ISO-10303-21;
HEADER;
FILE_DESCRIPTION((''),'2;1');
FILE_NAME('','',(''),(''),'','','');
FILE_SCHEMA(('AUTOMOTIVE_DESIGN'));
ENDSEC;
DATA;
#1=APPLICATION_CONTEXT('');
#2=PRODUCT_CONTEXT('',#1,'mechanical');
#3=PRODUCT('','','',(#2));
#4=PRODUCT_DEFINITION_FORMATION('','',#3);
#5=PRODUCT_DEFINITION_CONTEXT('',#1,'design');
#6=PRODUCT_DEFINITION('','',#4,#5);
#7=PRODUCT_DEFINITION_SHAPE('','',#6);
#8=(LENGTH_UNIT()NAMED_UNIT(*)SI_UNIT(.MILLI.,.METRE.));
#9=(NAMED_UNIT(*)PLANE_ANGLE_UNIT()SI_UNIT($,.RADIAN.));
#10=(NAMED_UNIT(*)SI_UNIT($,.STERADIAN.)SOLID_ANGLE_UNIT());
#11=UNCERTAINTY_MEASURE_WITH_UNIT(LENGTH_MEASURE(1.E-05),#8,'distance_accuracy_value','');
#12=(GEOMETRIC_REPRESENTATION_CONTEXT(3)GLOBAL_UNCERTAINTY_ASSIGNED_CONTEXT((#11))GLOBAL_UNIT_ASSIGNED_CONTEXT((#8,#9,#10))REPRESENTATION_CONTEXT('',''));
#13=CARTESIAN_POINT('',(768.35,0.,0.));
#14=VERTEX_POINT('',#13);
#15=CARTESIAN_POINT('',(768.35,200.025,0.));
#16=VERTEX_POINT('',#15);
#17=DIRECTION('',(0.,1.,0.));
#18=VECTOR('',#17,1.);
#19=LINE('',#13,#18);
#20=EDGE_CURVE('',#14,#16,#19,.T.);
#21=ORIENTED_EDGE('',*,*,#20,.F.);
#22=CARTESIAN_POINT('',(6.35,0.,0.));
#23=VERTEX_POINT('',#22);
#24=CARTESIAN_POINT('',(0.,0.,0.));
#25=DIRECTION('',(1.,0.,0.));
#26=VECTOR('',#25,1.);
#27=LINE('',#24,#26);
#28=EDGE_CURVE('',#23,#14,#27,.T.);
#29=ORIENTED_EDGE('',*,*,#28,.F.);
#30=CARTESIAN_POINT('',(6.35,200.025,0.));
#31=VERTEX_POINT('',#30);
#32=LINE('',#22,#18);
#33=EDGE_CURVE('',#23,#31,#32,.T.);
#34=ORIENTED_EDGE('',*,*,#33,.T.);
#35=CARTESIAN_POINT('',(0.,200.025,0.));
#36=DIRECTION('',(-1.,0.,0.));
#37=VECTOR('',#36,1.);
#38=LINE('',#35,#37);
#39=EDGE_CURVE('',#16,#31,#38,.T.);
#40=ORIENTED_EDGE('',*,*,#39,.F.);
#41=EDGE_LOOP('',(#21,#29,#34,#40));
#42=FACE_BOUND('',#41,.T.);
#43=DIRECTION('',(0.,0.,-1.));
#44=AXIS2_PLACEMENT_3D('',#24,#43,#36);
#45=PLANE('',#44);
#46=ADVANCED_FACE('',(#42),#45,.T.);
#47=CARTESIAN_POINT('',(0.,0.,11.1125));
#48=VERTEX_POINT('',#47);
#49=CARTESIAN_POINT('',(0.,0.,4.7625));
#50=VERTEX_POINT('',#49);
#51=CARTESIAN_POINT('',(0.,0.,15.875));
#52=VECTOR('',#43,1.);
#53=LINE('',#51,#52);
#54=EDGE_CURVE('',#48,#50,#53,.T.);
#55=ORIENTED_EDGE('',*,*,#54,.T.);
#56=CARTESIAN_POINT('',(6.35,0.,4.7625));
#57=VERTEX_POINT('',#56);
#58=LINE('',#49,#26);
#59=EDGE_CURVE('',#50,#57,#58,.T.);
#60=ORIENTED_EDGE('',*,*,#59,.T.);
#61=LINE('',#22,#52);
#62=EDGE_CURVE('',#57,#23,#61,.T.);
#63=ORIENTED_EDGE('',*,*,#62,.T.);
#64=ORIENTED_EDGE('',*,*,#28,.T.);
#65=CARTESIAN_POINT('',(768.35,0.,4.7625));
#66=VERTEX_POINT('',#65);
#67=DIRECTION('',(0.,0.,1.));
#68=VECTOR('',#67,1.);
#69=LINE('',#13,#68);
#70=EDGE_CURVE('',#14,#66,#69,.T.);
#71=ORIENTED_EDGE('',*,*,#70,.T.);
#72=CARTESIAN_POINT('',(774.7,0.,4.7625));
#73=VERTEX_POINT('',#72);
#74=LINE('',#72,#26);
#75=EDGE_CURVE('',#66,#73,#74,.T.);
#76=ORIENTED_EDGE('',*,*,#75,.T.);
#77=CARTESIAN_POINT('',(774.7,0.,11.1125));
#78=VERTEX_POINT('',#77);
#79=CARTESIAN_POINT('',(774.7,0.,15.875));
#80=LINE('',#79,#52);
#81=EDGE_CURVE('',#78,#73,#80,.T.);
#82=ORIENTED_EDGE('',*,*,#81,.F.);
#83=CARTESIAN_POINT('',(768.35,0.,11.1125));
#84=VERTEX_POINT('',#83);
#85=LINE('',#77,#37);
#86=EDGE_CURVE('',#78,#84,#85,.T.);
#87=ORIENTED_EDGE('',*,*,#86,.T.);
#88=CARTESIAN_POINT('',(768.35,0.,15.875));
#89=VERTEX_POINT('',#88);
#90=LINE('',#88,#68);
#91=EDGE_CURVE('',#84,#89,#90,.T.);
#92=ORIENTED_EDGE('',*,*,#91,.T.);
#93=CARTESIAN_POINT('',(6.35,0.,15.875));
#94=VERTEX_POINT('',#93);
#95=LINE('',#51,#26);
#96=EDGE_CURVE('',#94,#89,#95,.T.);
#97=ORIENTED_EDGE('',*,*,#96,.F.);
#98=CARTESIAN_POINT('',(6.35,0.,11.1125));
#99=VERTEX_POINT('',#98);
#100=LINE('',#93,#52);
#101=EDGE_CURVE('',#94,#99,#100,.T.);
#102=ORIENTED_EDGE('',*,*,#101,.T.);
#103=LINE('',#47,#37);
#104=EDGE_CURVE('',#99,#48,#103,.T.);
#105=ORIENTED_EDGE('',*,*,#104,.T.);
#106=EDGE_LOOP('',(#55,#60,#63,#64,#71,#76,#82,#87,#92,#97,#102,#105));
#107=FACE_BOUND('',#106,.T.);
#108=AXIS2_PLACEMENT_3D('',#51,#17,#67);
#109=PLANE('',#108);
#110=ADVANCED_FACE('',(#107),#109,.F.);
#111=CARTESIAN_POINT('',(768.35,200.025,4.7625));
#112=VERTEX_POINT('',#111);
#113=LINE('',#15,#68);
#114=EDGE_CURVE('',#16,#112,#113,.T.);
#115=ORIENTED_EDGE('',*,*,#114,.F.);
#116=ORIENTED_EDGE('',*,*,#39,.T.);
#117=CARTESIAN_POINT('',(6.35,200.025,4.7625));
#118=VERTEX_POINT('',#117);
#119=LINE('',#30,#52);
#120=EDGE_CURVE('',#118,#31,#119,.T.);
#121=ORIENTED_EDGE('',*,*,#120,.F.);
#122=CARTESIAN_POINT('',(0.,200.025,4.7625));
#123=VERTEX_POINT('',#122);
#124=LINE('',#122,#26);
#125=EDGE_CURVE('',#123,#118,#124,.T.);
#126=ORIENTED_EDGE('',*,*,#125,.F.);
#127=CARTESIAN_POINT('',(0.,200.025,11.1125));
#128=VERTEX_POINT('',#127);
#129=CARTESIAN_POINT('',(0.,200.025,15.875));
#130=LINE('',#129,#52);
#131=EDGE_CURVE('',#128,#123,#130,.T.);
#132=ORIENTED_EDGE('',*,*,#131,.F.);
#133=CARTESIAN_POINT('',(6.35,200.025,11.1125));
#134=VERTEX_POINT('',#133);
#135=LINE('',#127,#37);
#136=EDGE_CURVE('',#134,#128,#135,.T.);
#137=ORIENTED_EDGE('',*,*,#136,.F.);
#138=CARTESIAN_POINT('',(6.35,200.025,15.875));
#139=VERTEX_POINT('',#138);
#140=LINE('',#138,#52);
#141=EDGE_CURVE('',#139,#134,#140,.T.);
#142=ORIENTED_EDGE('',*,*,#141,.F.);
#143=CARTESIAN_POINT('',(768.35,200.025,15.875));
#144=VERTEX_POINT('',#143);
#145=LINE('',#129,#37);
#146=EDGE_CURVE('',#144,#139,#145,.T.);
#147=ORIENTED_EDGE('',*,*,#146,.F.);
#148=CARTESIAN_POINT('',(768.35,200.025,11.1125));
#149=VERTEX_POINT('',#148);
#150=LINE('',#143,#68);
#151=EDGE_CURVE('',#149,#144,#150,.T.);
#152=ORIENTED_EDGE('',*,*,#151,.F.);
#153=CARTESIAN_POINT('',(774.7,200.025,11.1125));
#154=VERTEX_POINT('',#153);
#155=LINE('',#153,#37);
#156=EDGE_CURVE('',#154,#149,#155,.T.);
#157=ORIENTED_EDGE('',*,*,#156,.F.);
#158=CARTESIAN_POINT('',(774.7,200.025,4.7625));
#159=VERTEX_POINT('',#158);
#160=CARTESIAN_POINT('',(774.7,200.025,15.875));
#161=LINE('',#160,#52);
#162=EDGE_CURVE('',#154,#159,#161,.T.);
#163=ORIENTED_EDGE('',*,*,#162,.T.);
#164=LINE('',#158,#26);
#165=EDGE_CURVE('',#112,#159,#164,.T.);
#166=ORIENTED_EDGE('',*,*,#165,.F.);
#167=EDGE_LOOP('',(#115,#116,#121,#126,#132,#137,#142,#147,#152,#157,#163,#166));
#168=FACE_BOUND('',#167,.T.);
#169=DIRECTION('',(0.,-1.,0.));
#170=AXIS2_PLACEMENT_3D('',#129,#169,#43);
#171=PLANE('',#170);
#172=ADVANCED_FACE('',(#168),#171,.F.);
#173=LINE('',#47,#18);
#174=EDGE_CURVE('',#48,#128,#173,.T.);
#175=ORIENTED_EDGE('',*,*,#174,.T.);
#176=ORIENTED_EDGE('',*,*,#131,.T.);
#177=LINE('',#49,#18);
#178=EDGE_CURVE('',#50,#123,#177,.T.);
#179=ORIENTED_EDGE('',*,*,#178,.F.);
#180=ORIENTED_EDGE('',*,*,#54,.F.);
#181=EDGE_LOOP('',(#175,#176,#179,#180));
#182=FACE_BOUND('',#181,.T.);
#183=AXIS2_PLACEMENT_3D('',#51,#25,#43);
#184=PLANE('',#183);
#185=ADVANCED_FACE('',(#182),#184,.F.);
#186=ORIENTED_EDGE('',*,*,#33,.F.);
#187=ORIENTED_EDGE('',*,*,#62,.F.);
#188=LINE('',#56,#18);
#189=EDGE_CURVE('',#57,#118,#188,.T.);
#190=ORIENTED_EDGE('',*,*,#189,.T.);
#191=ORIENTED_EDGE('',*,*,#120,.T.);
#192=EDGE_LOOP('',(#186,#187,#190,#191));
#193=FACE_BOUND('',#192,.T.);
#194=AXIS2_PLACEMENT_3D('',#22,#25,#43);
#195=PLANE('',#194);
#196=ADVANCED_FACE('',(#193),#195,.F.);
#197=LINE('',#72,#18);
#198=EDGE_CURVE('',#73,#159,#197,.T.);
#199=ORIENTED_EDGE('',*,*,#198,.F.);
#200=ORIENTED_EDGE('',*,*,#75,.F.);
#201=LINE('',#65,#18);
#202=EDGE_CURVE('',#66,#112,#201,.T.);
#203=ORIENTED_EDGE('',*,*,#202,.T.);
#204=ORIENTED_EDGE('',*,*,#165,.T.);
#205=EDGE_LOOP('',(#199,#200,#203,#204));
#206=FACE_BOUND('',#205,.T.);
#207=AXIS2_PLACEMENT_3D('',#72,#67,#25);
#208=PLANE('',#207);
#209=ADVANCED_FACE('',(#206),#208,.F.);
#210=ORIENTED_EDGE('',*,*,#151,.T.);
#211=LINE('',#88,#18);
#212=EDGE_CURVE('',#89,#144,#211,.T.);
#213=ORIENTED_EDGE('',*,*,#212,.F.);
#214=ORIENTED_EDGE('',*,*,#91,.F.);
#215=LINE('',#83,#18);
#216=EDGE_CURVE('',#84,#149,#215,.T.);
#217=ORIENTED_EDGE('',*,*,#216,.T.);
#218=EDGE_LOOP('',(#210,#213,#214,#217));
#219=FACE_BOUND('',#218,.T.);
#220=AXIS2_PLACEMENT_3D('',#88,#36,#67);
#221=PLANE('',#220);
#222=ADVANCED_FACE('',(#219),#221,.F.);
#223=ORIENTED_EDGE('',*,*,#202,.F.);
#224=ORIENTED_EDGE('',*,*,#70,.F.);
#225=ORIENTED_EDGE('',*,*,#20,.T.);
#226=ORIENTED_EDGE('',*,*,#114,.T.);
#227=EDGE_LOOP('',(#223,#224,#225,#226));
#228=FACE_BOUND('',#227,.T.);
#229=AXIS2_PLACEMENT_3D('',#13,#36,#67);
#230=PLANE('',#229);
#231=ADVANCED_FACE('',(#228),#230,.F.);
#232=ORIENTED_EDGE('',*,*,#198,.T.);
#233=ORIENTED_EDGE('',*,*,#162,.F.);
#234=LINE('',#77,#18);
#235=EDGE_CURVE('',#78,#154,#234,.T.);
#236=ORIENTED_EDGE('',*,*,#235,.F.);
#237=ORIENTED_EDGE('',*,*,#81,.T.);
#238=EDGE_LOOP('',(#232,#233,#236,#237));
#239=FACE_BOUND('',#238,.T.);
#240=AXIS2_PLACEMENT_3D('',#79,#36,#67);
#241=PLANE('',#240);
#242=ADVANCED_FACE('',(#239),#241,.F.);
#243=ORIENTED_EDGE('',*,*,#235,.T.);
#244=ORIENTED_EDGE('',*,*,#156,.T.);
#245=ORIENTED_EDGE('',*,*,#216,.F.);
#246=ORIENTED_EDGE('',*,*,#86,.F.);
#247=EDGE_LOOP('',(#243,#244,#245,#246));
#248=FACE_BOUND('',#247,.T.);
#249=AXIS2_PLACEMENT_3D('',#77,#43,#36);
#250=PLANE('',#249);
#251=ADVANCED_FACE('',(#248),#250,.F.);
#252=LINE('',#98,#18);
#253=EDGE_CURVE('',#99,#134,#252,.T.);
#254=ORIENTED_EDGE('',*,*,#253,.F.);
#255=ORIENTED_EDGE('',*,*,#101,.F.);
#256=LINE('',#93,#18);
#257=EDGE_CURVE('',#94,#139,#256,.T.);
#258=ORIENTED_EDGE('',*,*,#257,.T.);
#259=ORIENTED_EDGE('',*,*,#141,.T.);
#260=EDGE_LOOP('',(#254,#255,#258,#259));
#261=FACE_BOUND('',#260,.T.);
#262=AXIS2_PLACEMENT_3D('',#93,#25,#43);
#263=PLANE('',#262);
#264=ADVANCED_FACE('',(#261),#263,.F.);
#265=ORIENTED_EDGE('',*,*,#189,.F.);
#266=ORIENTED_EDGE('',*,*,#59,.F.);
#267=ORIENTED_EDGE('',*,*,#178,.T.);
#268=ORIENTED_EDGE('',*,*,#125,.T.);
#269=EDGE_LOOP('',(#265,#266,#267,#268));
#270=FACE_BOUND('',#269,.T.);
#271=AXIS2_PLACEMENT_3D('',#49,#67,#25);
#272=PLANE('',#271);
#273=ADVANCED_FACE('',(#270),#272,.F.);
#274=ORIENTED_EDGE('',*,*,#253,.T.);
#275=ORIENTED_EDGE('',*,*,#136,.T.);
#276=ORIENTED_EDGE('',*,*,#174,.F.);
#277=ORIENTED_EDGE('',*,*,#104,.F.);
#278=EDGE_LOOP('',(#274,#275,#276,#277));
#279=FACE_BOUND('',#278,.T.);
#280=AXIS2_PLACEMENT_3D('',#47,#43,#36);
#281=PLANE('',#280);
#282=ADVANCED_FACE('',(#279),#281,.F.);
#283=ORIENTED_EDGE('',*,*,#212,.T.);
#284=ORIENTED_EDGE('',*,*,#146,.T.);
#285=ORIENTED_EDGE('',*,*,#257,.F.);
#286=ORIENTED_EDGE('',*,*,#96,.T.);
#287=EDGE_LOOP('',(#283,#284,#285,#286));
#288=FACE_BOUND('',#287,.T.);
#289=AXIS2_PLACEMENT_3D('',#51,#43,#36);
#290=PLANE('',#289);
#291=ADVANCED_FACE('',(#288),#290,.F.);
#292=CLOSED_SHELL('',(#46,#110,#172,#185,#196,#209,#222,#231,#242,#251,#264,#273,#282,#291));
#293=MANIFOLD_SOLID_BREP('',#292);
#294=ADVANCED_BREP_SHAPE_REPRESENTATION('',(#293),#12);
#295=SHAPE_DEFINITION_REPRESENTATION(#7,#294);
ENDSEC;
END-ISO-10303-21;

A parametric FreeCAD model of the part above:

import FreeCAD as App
import Part
import Sketcher
Q = App.Units.Quantity

doc = App.newDocument("Part")
params = doc.addObject("Spreadsheet::Sheet", "Params")
for row, (alias, value) in enumerate([
    ("sketch1_width", "30.5 in"),
    ("sketch1_height", "7.875 in"),
    ("pad1_length", "0.625 in"),
    ("sketch2_width", "0.25 in"),
    ("sketch2_height", "0.1875 in"),
], start=1):
    params.set(f"A{row}", alias)
    params.set(f"B{row}", "=" + value)
    params.setAlias(f"B{row}", alias)

body = doc.addObject("PartDesign::Body", "Body")

sketch1 = doc.addObject("Sketcher::SketchObject", "Sketch")
body.addObject(sketch1)
sketch1.AttachmentSupport = (doc.XY_Plane, [""])
sketch1.MapMode = "FlatFace"
sketch1.addGeometry(Part.LineSegment(App.Vector(0, 200, 0), App.Vector(0, 0, 0)), False)
sketch1.addGeometry(Part.LineSegment(App.Vector(0, 0, 0), App.Vector(775, 0, 0)), False)
sketch1.addGeometry(Part.LineSegment(App.Vector(775, 0, 0), App.Vector(775, 200, 0)), False)
sketch1.addGeometry(Part.LineSegment(App.Vector(775, 200, 0), App.Vector(0, 200, 0)), False)
sketch1.addConstraint(Sketcher.Constraint("Coincident", 0, 2, 1, 1))
sketch1.addConstraint(Sketcher.Constraint("Coincident", 1, 2, 2, 1))
sketch1.addConstraint(Sketcher.Constraint("Coincident", 2, 2, 3, 1))
sketch1.addConstraint(Sketcher.Constraint("Coincident", 3, 2, 0, 1))
sketch1.addConstraint(Sketcher.Constraint("Vertical", 0))
sketch1.addConstraint(Sketcher.Constraint("Horizontal", 1))
sketch1.addConstraint(Sketcher.Constraint("Vertical", 2))
sketch1.addConstraint(Sketcher.Constraint("Horizontal", 3))
sketch1.addConstraint(Sketcher.Constraint("Coincident", 0, 2, -1, 1))
sketch1.addConstraint(Sketcher.Constraint("DistanceX", 1, 1, 1, 2, Q("30.5 in")))
sketch1.addConstraint(Sketcher.Constraint("DistanceY", 0, 2, 0, 1, Q("7.875 in")))
sketch1.setExpression("Constraints[9]", "Params.sketch1_width")
sketch1.setExpression("Constraints[10]", "Params.sketch1_height")
pad1 = doc.addObject("PartDesign::Pad", "Pad")
body.addObject(pad1)
pad1.Profile = sketch1
pad1.setExpression("Length", "Params.pad1_length")

sketch2 = doc.addObject("Sketcher::SketchObject", "Sketch001")
body.addObject(sketch2)
sketch2.AttachmentSupport = (doc.XZ_Plane, [""])
sketch2.MapMode = "FlatFace"
sketch2.AttachmentOffset = App.Placement(App.Vector(0, 0, -7.875 * 25.4), App.Rotation())
sketch2.addGeometry(Part.LineSegment(App.Vector(768.4, 11.1, 0), App.Vector(768.4, 15.9, 0)), False)
sketch2.addGeometry(Part.LineSegment(App.Vector(768.4, 15.9, 0), App.Vector(774.7, 15.9, 0)), False)
sketch2.addGeometry(Part.LineSegment(App.Vector(774.7, 15.9, 0), App.Vector(774.7, 11.1, 0)), False)
sketch2.addGeometry(Part.LineSegment(App.Vector(774.7, 11.1, 0), App.Vector(768.4, 11.1, 0)), False)
sketch2.addGeometry(Part.LineSegment(App.Vector(768.4, 0, 0), App.Vector(768.4, 4.8, 0)), False)
sketch2.addGeometry(Part.LineSegment(App.Vector(768.4, 4.8, 0), App.Vector(774.7, 4.8, 0)), False)
sketch2.addGeometry(Part.LineSegment(App.Vector(774.7, 4.8, 0), App.Vector(774.7, 0, 0)), False)
sketch2.addGeometry(Part.LineSegment(App.Vector(774.7, 0, 0), App.Vector(768.4, 0, 0)), False)
sketch2.addGeometry(Part.LineSegment(App.Vector(0, 0, 0), App.Vector(0, 4.8, 0)), False)
sketch2.addGeometry(Part.LineSegment(App.Vector(0, 4.8, 0), App.Vector(6.3, 4.8, 0)), False)
sketch2.addGeometry(Part.LineSegment(App.Vector(6.3, 4.8, 0), App.Vector(6.3, 0, 0)), False)
sketch2.addGeometry(Part.LineSegment(App.Vector(6.3, 0, 0), App.Vector(0, 0, 0)), False)
sketch2.addGeometry(Part.LineSegment(App.Vector(0, 11.1, 0), App.Vector(0, 15.9, 0)), False)
sketch2.addGeometry(Part.LineSegment(App.Vector(0, 15.9, 0), App.Vector(6.3, 15.9, 0)), False)
sketch2.addGeometry(Part.LineSegment(App.Vector(6.3, 15.9, 0), App.Vector(6.3, 11.1, 0)), False)
sketch2.addGeometry(Part.LineSegment(App.Vector(6.3, 11.1, 0), App.Vector(0, 11.1, 0)), False)
sketch2.addConstraint(Sketcher.Constraint("Coincident", 0, 2, 1, 1))
sketch2.addConstraint(Sketcher.Constraint("Coincident", 1, 2, 2, 1))
sketch2.addConstraint(Sketcher.Constraint("Coincident", 2, 2, 3, 1))
sketch2.addConstraint(Sketcher.Constraint("Coincident", 3, 2, 0, 1))
sketch2.addConstraint(Sketcher.Constraint("Coincident", 4, 2, 5, 1))
sketch2.addConstraint(Sketcher.Constraint("Coincident", 5, 2, 6, 1))
sketch2.addConstraint(Sketcher.Constraint("Coincident", 6, 2, 7, 1))
sketch2.addConstraint(Sketcher.Constraint("Coincident", 7, 2, 4, 1))
sketch2.addConstraint(Sketcher.Constraint("Coincident", 8, 2, 9, 1))
sketch2.addConstraint(Sketcher.Constraint("Coincident", 9, 2, 10, 1))
sketch2.addConstraint(Sketcher.Constraint("Coincident", 10, 2, 11, 1))
sketch2.addConstraint(Sketcher.Constraint("Coincident", 11, 2, 8, 1))
sketch2.addConstraint(Sketcher.Constraint("Coincident", 12, 2, 13, 1))
sketch2.addConstraint(Sketcher.Constraint("Coincident", 13, 2, 14, 1))
sketch2.addConstraint(Sketcher.Constraint("Coincident", 14, 2, 15, 1))
sketch2.addConstraint(Sketcher.Constraint("Coincident", 15, 2, 12, 1))
sketch2.addConstraint(Sketcher.Constraint("Vertical", 0))
sketch2.addConstraint(Sketcher.Constraint("Horizontal", 1))
sketch2.addConstraint(Sketcher.Constraint("Vertical", 2))
sketch2.addConstraint(Sketcher.Constraint("Horizontal", 3))
sketch2.addConstraint(Sketcher.Constraint("Vertical", 4))
sketch2.addConstraint(Sketcher.Constraint("Horizontal", 5))
sketch2.addConstraint(Sketcher.Constraint("Vertical", 6))
sketch2.addConstraint(Sketcher.Constraint("Horizontal", 7))
sketch2.addConstraint(Sketcher.Constraint("Vertical", 8))
sketch2.addConstraint(Sketcher.Constraint("Horizontal", 9))
sketch2.addConstraint(Sketcher.Constraint("Vertical", 10))
sketch2.addConstraint(Sketcher.Constraint("Horizontal", 11))
sketch2.addConstraint(Sketcher.Constraint("Vertical", 12))
sketch2.addConstraint(Sketcher.Constraint("Horizontal", 13))
sketch2.addConstraint(Sketcher.Constraint("Vertical", 14))
sketch2.addConstraint(Sketcher.Constraint("Horizontal", 15))
sketch2.addConstraint(Sketcher.Constraint("Coincident", 11, 2, -1, 1))
sketch2.addConstraint(Sketcher.Constraint("PointOnObject", 6, 2, -1))
sketch2.addConstraint(Sketcher.Constraint("PointOnObject", 12, 2, -2))
sketch2.addConstraint(Sketcher.Constraint("Horizontal", 5, 2, 8, 2))
sketch2.addConstraint(Sketcher.Constraint("Horizontal", 1, 2, 12, 2))
sketch2.addConstraint(Sketcher.Constraint("Horizontal", 3, 2, 14, 2))
sketch2.addConstraint(Sketcher.Constraint("Vertical", 3, 2, 4, 2))
sketch2.addConstraint(Sketcher.Constraint("Vertical", 2, 2, 5, 2))
sketch2.addConstraint(Sketcher.Constraint("Vertical", 10, 2, 13, 2))
sketch2.addConstraint(Sketcher.Constraint("Equal", 7, 9))
sketch2.addConstraint(Sketcher.Constraint("Equal", 2, 4))
sketch2.addConstraint(Sketcher.Constraint("DistanceX", 9, 2, 4, 2, Q("30 in")))
sketch2.addConstraint(Sketcher.Constraint("DistanceX", 1, 1, 1, 2, Q("0.25 in")))
sketch2.addConstraint(Sketcher.Constraint("DistanceY", 0, 1, 0, 2, Q("0.1875 in")))
sketch2.addConstraint(Sketcher.Constraint("DistanceY", 4, 2, 3, 2, Q("0.25 in")))
sketch2.setExpression("Constraints[44]", "Params.sketch2_width")
sketch2.setExpression("Constraints[45]", "Params.sketch2_height")
pocket1 = doc.addObject("PartDesign::Pocket", "Pocket")
body.addObject(pocket1)
pocket1.Profile = sketch2
pocket1.Type = "ThroughAll"
pocket1.Reversed = True

doc.recompute()
